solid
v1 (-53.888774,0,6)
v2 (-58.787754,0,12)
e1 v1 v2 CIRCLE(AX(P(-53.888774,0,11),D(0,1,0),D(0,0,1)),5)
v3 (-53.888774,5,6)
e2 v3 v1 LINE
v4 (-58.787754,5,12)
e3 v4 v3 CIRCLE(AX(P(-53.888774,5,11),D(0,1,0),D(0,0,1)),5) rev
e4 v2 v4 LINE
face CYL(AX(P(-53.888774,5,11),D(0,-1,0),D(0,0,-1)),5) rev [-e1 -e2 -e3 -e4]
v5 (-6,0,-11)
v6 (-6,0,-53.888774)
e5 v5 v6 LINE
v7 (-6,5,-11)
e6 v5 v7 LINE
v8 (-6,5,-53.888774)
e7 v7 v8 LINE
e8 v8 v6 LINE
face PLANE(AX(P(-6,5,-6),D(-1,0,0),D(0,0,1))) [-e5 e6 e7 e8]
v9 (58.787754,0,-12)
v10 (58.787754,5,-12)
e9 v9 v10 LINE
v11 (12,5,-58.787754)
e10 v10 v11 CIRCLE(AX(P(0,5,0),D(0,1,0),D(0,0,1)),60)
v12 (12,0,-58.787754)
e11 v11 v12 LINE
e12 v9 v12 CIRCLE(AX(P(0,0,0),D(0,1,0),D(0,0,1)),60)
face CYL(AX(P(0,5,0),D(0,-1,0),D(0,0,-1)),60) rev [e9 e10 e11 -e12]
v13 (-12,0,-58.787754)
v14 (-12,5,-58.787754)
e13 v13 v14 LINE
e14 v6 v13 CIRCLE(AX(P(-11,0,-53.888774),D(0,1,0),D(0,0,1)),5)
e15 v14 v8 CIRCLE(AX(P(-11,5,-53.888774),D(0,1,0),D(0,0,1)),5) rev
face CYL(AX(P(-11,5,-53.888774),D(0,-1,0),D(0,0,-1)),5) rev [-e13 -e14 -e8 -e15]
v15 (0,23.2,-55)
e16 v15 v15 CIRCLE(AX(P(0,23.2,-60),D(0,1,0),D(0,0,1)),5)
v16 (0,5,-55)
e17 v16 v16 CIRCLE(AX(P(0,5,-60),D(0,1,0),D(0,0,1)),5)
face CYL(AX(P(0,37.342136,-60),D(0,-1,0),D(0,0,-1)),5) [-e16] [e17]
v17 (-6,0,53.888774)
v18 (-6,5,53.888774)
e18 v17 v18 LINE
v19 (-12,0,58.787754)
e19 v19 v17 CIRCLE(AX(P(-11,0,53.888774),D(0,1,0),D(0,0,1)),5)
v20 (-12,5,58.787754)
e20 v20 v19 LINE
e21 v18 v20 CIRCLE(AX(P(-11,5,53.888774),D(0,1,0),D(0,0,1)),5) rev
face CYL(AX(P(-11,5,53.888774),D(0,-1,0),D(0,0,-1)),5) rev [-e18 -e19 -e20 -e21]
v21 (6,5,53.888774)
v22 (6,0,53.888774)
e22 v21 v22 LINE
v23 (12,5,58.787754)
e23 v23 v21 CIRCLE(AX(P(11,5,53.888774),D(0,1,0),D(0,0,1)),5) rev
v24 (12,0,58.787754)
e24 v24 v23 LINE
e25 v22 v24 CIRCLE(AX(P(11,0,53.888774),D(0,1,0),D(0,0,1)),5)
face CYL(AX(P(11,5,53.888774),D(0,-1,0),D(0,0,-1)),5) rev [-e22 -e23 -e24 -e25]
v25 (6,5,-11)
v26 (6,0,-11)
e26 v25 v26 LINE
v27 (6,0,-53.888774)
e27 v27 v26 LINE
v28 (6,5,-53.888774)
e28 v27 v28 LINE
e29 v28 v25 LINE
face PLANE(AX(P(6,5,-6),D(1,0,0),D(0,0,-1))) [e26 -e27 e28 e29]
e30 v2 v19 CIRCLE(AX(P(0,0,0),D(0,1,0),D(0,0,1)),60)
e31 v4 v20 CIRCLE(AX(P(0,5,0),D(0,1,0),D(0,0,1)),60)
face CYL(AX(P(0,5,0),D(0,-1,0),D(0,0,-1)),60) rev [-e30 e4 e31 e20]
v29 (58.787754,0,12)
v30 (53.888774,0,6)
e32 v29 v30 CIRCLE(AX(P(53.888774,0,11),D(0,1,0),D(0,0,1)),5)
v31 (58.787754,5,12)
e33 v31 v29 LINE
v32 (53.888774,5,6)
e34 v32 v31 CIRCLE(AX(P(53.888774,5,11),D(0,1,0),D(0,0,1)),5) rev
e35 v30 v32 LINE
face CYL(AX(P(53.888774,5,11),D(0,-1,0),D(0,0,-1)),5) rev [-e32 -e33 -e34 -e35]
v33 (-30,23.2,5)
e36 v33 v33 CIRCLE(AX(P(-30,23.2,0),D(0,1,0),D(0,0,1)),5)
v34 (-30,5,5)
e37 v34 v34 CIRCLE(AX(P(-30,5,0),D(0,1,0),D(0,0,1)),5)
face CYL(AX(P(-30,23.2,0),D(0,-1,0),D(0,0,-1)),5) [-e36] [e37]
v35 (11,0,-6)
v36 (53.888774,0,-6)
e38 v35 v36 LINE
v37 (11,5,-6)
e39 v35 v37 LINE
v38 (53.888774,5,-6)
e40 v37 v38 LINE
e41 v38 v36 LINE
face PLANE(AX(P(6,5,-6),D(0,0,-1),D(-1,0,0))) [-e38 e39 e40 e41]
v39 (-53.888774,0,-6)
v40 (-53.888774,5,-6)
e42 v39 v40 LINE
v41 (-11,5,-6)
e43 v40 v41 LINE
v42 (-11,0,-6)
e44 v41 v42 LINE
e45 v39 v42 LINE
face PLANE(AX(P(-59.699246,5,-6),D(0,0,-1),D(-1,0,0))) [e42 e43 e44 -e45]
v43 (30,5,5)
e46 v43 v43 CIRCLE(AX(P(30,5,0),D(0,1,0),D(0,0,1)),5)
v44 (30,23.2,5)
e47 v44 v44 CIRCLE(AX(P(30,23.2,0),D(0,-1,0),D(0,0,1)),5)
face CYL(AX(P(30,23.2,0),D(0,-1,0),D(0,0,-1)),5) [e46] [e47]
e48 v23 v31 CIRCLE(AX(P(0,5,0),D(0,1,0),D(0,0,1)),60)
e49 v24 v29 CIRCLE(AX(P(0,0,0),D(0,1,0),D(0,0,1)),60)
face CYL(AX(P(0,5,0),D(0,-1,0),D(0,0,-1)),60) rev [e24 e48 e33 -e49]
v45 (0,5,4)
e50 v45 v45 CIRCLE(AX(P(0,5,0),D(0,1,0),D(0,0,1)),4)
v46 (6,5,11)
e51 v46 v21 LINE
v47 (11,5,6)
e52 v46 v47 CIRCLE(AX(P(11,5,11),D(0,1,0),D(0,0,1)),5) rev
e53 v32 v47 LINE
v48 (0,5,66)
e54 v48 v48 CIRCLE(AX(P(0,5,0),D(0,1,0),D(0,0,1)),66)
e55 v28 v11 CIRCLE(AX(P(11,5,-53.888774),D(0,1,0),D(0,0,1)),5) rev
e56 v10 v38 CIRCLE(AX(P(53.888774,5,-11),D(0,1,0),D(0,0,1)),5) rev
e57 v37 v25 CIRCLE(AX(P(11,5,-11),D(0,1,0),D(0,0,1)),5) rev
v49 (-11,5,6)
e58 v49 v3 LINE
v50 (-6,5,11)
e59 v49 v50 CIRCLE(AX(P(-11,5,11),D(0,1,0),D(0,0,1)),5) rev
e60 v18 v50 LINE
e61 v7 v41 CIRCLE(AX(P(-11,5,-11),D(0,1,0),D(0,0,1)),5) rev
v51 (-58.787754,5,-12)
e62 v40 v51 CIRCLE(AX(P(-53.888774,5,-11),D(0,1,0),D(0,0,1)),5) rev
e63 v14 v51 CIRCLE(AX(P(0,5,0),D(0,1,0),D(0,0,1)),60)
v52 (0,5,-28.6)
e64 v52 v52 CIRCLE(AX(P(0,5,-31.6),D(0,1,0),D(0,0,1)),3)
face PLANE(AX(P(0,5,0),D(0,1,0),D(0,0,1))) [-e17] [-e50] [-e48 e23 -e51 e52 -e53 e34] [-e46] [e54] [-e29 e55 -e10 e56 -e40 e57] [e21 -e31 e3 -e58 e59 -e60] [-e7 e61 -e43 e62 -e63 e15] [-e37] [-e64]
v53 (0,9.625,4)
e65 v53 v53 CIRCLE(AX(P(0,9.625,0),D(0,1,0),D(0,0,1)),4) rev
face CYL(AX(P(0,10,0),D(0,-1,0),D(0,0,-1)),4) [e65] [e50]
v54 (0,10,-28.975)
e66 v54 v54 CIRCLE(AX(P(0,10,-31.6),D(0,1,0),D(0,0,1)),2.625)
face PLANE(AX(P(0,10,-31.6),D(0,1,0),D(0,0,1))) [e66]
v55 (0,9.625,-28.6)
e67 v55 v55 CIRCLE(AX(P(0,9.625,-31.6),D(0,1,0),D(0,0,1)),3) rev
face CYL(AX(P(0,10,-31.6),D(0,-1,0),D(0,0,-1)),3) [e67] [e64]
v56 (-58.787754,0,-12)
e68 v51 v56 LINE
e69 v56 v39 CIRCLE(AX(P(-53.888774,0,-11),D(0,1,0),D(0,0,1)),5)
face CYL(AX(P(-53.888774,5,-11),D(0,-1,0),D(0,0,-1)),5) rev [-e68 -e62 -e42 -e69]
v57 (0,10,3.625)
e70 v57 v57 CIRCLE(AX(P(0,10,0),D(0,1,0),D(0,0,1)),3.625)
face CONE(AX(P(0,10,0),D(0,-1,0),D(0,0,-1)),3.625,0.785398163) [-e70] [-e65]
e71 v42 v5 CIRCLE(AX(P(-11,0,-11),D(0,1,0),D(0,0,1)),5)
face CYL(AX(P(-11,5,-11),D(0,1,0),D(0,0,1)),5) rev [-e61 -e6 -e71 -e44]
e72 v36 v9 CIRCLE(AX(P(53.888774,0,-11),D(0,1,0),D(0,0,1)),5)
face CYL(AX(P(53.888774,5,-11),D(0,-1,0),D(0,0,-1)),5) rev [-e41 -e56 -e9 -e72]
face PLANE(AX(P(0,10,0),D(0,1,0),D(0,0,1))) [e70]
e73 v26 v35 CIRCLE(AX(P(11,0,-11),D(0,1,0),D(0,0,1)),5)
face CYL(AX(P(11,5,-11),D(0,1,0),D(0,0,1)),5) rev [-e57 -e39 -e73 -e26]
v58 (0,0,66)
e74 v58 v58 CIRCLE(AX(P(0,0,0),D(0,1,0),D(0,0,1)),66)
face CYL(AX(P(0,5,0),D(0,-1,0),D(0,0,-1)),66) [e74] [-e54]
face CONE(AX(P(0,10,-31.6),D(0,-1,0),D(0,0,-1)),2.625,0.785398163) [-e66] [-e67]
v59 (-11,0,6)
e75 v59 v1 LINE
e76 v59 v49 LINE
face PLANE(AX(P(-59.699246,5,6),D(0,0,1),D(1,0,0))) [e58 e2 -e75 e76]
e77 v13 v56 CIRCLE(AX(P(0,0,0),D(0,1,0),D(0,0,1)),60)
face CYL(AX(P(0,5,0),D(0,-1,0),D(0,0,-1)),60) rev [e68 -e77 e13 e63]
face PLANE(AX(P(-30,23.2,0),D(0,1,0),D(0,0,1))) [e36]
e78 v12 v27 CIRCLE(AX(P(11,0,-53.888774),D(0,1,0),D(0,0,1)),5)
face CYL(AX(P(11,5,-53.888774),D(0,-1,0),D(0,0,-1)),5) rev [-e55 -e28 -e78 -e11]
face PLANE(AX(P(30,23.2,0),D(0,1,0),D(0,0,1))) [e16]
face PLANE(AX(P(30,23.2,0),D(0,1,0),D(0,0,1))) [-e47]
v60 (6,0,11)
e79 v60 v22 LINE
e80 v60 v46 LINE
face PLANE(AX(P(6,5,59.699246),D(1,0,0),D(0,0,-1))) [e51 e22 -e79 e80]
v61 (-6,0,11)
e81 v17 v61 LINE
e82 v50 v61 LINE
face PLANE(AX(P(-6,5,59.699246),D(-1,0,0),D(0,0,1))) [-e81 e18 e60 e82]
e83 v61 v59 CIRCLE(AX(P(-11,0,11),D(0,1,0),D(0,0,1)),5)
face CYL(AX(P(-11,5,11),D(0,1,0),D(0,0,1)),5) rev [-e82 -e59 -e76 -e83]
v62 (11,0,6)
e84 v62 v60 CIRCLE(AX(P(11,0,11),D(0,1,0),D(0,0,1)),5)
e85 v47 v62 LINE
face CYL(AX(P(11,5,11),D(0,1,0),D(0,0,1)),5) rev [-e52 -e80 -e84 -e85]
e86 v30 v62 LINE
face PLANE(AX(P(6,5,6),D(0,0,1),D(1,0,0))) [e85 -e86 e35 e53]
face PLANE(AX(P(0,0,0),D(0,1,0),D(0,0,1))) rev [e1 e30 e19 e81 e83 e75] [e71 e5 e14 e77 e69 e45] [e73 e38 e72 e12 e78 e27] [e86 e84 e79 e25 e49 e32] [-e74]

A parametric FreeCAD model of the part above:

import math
import FreeCAD as App
import Part
import Sketcher
from FreeCAD import Vector


def edges_at(feature, points):
    """Names of the edges that pass closest to the given points."""
    edges = feature.Shape.Edges
    near = lambda p: min(range(len(edges)), key=lambda i: edges[i].distToShape(Part.Vertex(*p))[0])
    return sorted({f"Edge{near(p) + 1}" for p in points})

doc = App.newDocument("Part")
body = doc.addObject("PartDesign::Body", "Body")

sketch1 = body.newObject("Sketcher::SketchObject", "Sketch")
sketch1.AttachmentSupport = (doc.getObject("XZ_Plane"), [""])
sketch1.MapMode = "FlatFace"
sketch1.addGeometry([
    Part.Circle(Vector(0, 0, 0), Vector(0, 0, 1), 66),
    Part.LineSegment(Vector(-6, -6, 0), Vector(-60, -6, 0)),
    Part.ArcOfCircle(Part.Circle(Vector(0, 0, 0), Vector(0, 0, 1), 60), math.radians(-174), math.radians(-96)),
    Part.LineSegment(Vector(-6, -60, 0), Vector(-6, -6, 0)),
    Part.LineSegment(Vector(-6, 6, 0), Vector(-6, 60, 0)),
    Part.ArcOfCircle(Part.Circle(Vector(0, 0, 0), Vector(0, 0, 1), 60), math.radians(96), math.radians(174)),
    Part.LineSegment(Vector(-60, 6, 0), Vector(-6, 6, 0)),
    Part.LineSegment(Vector(60, -6, 0), Vector(6, -6, 0)),
    Part.LineSegment(Vector(6, -6, 0), Vector(6, -60, 0)),
    Part.ArcOfCircle(Part.Circle(Vector(0, 0, 0), Vector(0, 0, 1), 60), math.radians(-84), math.radians(-6)),
    Part.ArcOfCircle(Part.Circle(Vector(0, 0, 0), Vector(0, 0, 1), 60), math.radians(6), math.radians(84)),
    Part.LineSegment(Vector(6, 60, 0), Vector(6, 6, 0)),
    Part.LineSegment(Vector(6, 6, 0), Vector(60, 6, 0)),
], False)
sketch1.addConstraint([
    Sketcher.Constraint("Coincident", 1, 2, 2, 1),
    Sketcher.Constraint("Coincident", 2, 2, 3, 1),
    Sketcher.Constraint("Coincident", 3, 2, 1, 1),
    Sketcher.Constraint("Coincident", 4, 2, 5, 1),
    Sketcher.Constraint("Coincident", 5, 2, 6, 1),
    Sketcher.Constraint("Coincident", 6, 2, 4, 1),
    Sketcher.Constraint("Coincident", 7, 2, 8, 1),
    Sketcher.Constraint("Coincident", 8, 2, 9, 1),
    Sketcher.Constraint("Coincident", 9, 2, 7, 1),
    Sketcher.Constraint("Coincident", 10, 2, 11, 1),
    Sketcher.Constraint("Coincident", 11, 2, 12, 1),
    Sketcher.Constraint("Coincident", 12, 2, 10, 1),
    Sketcher.Constraint("Horizontal", 1),
    Sketcher.Constraint("Vertical", 3),
    Sketcher.Constraint("Vertical", 4),
    Sketcher.Constraint("Horizontal", 6),
    Sketcher.Constraint("Horizontal", 7),
    Sketcher.Constraint("Vertical", 8),
    Sketcher.Constraint("Vertical", 11),
    Sketcher.Constraint("Horizontal", 12),
    Sketcher.Constraint("Coincident", 0, 3, -1, 1),
    Sketcher.Constraint("Coincident", 2, 3, -1, 1),
    Sketcher.Constraint("Coincident", 5, 3, -1, 1),
    Sketcher.Constraint("Coincident", 9, 3, -1, 1),
    Sketcher.Constraint("Coincident", 10, 3, -1, 1),
    Sketcher.Constraint("Equal", 2, 5),
    Sketcher.Constraint("Equal", 5, 9),
    Sketcher.Constraint("Equal", 9, 10),
    Sketcher.Constraint("Symmetric", 6, 2, 7, 2, -1, 1),
    Sketcher.Constraint("Symmetric", 3, 2, 11, 2, -1, 1),
    Sketcher.Constraint("Symmetric", 3, 2, 7, 2, -2),
    Sketcher.Constraint("Equal", 12, 3),
    Sketcher.Constraint("Diameter", 0, 132.0),
    Sketcher.Constraint("Radius", 2, 60.0),
    Sketcher.Constraint("DistanceY", 1, 2, -1, 1, 6.0),
])
pad1 = body.newObject("PartDesign::Pad", "Pad")
pad1.Profile = sketch1
pad1.Length = 5
pad1.Reversed = True
doc.recompute()

fillet = body.newObject("PartDesign::Fillet", "Fillet")
fillet.Base = (pad1, edges_at(pad1, [
    (-6, 2.5, -59.699),
    (-59.699, 2.5, -6),
    (-6, 2.5, -6),
    (6, 2.5, 59.699),
    (59.699, 2.5, 6),
    (6, 2.5, 6),
    (59.699, 2.5, -6),
    (6, 2.5, -59.699),
    (6, 2.5, -6),
    (-59.699, 2.5, 6),
    (-6, 2.5, 59.699),
    (-6, 2.5, 6),
]))
fillet.Radius = 5

sketch2 = body.newObject("Sketcher::SketchObject", "Sketch001")
sketch2.AttachmentSupport = (doc.getObject("XZ_Plane"), [""])
sketch2.MapMode = "FlatFace"
sketch2.AttachmentOffset = App.Placement(Vector(0, 0, -5), App.Rotation())
sketch2.addGeometry([
    Part.Circle(Vector(0, 0, 0), Vector(0, 0, 1), 4),
    Part.Circle(Vector(0, -31.6, 0), Vector(0, 0, 1), 3),
], False)
sketch2.addConstraint([
    Sketcher.Constraint("Coincident", 0, 3, -1, 1),
    Sketcher.Constraint("PointOnObject", 1, 3, -2),
    Sketcher.Constraint("Diameter", 0, 8.0),
    Sketcher.Constraint("Diameter", 1, 6.0),
    Sketcher.Constraint("DistanceY", 1, 3, -1, 1, 31.6),
])
pad2 = body.newObject("PartDesign::Pad", "Pad001")
pad2.Profile = sketch2
pad2.Length = 5
pad2.Reversed = True
doc.recompute()

chamfer = body.newObject("PartDesign::Chamfer", "Chamfer")
chamfer.Base = (pad2, edges_at(pad2, [(0, 10, -4), (0, 10, -34.6)]))
chamfer.Size = 0.375

sketch3 = body.newObject("Sketcher::SketchObject", "Sketch002")
sketch3.AttachmentSupport = (doc.getObject("XZ_Plane"), [""])
sketch3.MapMode = "FlatFace"
sketch3.AttachmentOffset = App.Placement(Vector(0, 0, -5), App.Rotation())
sketch3.addGeometry(Part.Circle(Vector(-30, 0, 0), Vector(0, 0, 1), 5), False)
sketch3.addConstraint([
    Sketcher.Constraint("PointOnObject", 0, 3, -1),
    Sketcher.Constraint("Diameter", 0, 10.0),
    Sketcher.Constraint("DistanceX", 0, 3, -1, 1, 30.0),
])
pad3 = body.newObject("PartDesign::Pad", "Pad002")
pad3.Profile = sketch3
pad3.Length = 18.2
pad3.Reversed = True
doc.recompute()

mirrored = body.newObject("PartDesign::Mirrored", "Mirrored")
mirrored.Originals = [pad3]
mirrored.MirrorPlane = (doc.getObject("YZ_Plane"), [""])
body.Tip = mirrored

sketch4 = body.newObject("Sketcher::SketchObject", "Sketch003")
sketch4.AttachmentSupport = (doc.getObject("XZ_Plane"), [""])
sketch4.MapMode = "FlatFace"
sketch4.AttachmentOffset = App.Placement(Vector(0, 0, -5), App.Rotation())
sketch4.addGeometry(Part.Circle(Vector(0, -60, 0), Vector(0, 0, 1), 5), False)
sketch4.addConstraint([
    Sketcher.Constraint("PointOnObject", 0, 3, -2),
    Sketcher.Constraint("Diameter", 0, 10.0),
    Sketcher.Constraint("DistanceY", 0, 3, -1, 1, 60.0),
])
pad4 = body.newObject("PartDesign::Pad", "Pad003")
pad4.Profile = sketch4
pad4.Length = 18.2
pad4.Reversed = True

doc.recompute()
